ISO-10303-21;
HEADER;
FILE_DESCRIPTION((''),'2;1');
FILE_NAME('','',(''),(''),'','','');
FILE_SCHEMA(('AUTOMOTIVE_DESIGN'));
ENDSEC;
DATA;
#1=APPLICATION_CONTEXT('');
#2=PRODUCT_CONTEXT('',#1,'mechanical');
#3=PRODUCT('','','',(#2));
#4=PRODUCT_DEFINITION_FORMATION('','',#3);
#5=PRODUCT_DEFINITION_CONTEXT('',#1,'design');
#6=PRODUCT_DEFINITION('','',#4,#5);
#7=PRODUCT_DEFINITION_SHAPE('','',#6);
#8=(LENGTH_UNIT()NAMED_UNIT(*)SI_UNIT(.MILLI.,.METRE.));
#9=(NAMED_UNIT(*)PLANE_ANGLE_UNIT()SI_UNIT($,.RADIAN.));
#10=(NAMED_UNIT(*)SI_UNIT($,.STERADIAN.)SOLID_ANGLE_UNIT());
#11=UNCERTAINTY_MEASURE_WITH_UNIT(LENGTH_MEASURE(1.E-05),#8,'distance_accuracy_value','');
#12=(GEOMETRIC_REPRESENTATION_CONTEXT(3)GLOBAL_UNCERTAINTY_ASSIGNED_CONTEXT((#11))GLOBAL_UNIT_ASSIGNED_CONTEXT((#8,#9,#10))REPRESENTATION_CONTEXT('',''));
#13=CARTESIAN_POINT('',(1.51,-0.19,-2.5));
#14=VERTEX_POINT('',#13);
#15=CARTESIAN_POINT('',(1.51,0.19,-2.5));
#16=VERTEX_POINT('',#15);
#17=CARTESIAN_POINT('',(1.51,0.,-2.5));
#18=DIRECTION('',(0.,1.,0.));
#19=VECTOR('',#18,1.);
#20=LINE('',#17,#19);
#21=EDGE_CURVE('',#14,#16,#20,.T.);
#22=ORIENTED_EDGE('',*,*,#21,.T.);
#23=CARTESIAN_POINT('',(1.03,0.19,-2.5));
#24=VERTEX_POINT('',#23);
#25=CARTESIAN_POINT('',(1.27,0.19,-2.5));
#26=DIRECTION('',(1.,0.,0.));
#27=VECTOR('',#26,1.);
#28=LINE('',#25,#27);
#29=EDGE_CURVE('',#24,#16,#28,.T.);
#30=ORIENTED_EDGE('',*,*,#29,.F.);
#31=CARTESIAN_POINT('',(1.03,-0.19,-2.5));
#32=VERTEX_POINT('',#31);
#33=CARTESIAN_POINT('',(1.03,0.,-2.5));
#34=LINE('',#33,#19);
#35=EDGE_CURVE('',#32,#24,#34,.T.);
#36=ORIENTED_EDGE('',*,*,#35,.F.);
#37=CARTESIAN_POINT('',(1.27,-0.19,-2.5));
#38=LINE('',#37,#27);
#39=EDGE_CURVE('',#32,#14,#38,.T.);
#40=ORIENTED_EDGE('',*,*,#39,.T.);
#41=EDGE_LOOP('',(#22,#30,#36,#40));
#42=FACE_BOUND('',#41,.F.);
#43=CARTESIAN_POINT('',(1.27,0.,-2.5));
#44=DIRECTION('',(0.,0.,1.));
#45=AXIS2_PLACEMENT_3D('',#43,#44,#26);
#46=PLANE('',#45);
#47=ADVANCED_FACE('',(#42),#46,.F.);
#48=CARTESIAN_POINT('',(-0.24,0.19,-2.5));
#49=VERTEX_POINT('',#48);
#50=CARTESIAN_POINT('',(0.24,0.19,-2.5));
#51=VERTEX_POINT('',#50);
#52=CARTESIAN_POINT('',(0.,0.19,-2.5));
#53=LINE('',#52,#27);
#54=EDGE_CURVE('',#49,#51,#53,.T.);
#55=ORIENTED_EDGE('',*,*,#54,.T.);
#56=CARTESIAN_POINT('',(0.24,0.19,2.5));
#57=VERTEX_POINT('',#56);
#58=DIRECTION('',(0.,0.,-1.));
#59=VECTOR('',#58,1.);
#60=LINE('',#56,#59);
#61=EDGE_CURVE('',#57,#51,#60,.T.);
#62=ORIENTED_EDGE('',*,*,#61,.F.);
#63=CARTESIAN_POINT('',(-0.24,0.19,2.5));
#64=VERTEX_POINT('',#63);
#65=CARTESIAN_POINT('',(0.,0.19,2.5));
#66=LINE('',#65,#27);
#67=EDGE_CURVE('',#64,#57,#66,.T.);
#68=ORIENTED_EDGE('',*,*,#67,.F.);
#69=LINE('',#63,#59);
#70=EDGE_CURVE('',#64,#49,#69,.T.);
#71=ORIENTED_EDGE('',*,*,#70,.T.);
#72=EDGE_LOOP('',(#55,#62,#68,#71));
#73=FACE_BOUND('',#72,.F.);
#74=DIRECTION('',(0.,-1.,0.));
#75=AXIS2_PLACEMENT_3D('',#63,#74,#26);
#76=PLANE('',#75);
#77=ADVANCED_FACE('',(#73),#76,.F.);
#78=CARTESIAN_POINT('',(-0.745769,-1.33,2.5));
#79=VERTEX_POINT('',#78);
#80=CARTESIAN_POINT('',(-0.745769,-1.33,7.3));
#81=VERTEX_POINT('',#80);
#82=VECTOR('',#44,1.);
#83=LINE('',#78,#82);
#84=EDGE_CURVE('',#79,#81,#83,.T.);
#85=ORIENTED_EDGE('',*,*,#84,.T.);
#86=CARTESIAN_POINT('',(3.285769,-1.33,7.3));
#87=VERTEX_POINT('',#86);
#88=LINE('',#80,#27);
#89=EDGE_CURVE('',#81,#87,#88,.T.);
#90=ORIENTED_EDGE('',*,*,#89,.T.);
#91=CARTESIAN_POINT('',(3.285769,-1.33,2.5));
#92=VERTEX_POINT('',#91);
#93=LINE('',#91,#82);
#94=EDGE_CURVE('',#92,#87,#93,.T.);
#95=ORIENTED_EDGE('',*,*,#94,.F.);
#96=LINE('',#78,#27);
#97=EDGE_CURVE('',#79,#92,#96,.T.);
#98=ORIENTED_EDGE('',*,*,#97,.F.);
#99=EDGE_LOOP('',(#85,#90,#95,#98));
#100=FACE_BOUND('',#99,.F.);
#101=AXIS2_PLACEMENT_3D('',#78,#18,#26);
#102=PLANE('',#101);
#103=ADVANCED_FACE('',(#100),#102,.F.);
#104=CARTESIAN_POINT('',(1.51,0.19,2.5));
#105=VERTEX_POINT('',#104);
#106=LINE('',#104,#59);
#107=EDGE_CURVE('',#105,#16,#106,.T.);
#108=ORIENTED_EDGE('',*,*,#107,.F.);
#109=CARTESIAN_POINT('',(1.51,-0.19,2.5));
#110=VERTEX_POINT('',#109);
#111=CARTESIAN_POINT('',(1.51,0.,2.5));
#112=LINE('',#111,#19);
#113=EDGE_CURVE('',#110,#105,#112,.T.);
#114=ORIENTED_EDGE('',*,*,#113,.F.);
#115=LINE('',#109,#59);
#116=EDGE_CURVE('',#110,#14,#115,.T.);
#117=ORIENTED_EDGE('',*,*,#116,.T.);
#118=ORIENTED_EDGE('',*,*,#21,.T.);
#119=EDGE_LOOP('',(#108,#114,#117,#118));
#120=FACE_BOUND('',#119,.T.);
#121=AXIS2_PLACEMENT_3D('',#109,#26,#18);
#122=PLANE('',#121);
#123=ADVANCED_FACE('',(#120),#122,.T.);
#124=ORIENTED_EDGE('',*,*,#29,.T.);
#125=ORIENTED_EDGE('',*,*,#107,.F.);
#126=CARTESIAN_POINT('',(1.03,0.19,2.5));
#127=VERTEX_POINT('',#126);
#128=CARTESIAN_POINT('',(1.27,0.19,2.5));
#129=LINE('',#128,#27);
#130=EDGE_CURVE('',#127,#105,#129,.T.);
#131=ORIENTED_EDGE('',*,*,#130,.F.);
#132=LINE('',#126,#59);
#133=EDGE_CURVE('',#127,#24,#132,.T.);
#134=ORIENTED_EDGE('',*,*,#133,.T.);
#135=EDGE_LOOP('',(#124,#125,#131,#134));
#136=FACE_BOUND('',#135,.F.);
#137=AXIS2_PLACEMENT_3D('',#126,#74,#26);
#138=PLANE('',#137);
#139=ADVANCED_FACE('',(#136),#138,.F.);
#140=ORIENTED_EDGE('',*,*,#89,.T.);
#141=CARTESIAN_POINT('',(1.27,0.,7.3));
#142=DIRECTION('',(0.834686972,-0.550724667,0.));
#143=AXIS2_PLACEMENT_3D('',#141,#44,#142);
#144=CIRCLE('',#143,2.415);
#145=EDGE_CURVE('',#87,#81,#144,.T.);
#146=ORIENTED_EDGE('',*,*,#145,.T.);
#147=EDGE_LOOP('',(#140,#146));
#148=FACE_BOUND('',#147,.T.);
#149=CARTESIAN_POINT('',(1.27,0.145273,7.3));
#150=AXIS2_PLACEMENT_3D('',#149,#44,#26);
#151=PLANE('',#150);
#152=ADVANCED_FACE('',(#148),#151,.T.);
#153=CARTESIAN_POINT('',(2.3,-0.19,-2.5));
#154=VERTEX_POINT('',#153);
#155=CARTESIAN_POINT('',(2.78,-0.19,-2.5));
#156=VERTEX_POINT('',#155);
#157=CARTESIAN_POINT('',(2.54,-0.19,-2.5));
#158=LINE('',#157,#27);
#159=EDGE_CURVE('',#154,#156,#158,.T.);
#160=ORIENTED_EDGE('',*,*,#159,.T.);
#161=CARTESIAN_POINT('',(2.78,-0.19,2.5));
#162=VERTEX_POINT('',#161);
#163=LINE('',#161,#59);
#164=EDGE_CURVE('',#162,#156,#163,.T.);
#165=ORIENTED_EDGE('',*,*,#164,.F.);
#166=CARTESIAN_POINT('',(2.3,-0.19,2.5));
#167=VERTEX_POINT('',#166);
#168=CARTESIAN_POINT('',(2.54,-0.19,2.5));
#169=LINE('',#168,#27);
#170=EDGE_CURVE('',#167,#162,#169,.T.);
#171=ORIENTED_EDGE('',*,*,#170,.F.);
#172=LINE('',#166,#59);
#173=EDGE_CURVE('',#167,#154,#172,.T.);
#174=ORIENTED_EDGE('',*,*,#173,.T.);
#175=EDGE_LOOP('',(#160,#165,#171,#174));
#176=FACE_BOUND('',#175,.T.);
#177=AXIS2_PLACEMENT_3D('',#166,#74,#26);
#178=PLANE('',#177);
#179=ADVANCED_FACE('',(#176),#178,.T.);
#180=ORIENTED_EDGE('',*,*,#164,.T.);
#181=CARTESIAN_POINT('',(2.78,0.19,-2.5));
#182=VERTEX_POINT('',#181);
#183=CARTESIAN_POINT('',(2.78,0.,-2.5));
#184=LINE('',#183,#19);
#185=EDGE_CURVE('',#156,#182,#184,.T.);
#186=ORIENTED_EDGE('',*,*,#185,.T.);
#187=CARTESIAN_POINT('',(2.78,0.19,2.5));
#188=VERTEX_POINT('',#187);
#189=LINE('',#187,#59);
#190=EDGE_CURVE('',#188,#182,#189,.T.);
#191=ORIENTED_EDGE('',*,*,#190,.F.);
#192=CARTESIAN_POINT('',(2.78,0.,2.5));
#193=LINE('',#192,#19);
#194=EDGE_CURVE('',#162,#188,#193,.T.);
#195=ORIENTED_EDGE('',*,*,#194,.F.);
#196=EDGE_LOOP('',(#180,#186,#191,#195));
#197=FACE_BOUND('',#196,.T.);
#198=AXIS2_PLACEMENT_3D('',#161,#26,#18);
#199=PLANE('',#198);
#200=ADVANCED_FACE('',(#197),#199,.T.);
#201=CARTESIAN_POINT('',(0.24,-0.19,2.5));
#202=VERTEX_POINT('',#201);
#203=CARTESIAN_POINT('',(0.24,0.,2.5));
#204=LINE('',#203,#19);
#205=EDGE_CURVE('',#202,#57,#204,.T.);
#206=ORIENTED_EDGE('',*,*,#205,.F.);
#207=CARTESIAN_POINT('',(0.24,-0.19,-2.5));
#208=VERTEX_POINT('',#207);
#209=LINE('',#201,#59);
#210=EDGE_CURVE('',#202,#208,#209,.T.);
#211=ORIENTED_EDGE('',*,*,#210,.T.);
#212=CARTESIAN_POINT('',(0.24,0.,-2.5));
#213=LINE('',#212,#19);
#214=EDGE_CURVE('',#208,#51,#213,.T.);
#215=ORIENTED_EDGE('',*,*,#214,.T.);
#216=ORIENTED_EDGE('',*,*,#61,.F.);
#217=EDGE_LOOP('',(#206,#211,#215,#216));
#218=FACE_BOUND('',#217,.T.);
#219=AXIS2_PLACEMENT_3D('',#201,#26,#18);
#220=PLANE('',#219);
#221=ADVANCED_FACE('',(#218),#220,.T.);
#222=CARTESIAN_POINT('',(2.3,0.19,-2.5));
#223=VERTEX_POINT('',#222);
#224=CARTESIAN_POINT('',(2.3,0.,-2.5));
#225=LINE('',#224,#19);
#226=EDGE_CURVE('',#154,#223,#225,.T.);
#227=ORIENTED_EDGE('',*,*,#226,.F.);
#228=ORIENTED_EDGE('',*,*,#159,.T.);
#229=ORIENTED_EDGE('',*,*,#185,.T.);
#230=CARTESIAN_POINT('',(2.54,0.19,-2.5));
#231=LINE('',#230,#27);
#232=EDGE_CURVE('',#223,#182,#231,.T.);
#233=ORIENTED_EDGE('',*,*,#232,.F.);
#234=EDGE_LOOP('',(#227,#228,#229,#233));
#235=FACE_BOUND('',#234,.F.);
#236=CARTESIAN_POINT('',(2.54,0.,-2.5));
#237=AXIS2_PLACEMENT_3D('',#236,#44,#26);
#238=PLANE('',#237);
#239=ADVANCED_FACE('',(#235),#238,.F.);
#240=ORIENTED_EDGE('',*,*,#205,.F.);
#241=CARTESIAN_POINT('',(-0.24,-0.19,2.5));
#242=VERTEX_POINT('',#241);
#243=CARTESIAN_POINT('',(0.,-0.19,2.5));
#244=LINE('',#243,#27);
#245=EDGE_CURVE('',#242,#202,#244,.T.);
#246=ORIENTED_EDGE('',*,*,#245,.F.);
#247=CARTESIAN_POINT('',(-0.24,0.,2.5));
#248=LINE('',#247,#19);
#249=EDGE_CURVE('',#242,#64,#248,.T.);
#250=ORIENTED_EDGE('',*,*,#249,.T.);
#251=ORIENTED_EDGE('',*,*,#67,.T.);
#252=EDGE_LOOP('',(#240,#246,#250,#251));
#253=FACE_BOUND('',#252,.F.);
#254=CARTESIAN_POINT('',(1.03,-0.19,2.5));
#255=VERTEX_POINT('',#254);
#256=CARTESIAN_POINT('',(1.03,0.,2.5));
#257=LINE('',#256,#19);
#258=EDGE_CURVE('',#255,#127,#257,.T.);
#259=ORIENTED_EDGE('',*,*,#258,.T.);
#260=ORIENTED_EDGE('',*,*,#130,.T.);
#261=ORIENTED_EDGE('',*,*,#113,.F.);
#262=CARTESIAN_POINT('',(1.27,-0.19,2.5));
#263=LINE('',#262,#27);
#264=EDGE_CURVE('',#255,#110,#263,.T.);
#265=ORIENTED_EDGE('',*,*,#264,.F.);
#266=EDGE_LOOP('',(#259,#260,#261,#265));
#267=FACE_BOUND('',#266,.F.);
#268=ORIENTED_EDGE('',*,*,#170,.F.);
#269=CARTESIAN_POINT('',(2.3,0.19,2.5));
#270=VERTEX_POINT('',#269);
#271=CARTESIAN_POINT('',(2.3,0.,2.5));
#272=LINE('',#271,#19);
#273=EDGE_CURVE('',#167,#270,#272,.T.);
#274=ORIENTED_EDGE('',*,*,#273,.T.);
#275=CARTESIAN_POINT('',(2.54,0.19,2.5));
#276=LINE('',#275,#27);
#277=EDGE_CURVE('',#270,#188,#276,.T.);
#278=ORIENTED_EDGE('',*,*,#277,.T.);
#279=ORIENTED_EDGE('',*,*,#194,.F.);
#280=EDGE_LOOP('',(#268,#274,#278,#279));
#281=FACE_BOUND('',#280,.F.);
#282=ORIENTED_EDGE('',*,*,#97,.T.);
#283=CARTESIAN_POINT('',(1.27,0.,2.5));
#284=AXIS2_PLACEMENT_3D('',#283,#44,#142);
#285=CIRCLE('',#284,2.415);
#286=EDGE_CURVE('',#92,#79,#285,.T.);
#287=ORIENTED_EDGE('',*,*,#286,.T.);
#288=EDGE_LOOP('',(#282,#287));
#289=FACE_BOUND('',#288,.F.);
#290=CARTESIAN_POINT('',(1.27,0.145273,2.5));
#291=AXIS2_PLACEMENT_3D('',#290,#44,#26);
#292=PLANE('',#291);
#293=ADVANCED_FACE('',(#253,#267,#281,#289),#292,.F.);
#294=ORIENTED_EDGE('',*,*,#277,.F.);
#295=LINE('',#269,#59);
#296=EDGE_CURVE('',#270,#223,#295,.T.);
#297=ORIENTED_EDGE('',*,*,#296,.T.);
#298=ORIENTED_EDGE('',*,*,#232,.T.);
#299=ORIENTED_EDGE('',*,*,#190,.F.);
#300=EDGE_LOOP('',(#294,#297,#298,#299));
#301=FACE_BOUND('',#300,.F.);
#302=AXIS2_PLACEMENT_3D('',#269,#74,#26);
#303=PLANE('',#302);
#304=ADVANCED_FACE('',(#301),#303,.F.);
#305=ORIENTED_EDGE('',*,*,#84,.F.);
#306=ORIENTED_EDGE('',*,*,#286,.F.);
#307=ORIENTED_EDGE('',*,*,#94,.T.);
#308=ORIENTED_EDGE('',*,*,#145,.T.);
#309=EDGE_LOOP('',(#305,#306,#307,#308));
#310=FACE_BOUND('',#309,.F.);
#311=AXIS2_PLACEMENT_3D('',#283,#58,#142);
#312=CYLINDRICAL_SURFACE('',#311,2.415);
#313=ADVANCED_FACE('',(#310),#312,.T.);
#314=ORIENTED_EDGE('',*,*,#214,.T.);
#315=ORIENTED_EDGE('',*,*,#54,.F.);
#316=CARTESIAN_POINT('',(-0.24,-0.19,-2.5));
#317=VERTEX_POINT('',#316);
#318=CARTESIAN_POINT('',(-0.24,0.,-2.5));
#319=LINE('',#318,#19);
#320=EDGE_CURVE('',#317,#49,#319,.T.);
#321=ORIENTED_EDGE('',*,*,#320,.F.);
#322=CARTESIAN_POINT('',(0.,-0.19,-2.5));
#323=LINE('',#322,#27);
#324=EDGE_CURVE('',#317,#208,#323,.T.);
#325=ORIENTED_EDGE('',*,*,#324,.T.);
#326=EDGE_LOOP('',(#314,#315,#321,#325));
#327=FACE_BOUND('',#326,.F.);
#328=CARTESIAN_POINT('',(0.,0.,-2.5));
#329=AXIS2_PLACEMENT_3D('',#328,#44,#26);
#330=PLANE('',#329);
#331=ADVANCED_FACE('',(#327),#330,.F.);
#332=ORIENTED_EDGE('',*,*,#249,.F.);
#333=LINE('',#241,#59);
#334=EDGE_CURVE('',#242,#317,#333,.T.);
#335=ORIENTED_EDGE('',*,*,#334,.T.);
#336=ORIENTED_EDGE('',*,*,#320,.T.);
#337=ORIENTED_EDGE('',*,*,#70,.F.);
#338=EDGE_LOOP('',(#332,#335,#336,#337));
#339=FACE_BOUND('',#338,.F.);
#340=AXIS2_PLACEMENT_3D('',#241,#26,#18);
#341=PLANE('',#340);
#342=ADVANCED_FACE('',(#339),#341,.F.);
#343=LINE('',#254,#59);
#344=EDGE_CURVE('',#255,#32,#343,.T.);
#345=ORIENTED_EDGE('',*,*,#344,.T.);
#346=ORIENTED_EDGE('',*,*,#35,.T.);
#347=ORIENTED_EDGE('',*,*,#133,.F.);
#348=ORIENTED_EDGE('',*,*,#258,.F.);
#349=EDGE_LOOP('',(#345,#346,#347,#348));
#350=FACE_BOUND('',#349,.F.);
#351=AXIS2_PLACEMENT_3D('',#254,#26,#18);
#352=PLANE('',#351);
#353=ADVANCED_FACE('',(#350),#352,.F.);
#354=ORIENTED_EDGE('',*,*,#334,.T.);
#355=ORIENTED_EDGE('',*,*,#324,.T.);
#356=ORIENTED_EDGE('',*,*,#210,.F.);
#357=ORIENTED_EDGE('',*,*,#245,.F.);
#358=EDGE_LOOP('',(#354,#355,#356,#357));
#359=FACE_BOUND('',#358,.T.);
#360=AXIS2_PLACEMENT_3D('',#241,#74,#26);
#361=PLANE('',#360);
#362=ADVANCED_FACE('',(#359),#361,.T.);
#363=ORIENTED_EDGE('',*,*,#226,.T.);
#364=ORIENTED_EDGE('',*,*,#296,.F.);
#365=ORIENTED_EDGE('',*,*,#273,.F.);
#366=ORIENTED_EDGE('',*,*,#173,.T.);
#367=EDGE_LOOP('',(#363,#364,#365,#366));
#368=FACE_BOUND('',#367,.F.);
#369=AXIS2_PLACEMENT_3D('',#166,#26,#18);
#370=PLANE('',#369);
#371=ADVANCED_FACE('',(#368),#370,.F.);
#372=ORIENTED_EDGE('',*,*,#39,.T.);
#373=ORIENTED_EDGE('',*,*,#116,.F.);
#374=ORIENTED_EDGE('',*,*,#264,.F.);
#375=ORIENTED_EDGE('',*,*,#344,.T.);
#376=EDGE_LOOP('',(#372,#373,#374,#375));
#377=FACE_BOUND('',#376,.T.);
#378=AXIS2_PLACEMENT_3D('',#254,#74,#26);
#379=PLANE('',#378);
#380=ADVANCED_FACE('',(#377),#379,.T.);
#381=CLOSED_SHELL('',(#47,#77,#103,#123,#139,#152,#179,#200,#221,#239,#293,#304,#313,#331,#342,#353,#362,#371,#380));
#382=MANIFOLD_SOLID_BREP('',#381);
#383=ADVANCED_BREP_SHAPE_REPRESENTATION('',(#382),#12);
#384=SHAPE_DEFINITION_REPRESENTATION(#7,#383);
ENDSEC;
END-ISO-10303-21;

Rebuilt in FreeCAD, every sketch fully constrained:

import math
import FreeCAD as App
import Part
import Sketcher
from FreeCAD import Vector


def add_polygon(sketch, points):
    """Adds a closed chain of lines whose ends are joined by coincident constraints."""
    first, n = sketch.GeometryCount, len(points)
    for a, b in zip(points, points[1:] + points[:1]):
        sketch.addGeometry(Part.LineSegment(App.Vector(*a, 0), App.Vector(*b, 0)), False)
    for i in range(n):
        sketch.addConstraint(Sketcher.Constraint("Coincident", first + i, 2, first + (i + 1) % n, 1))

doc = App.newDocument("Part")
params = doc.addObject("Spreadsheet::Sheet", "Params")
for row, (alias, value) in enumerate([
    ("sketch1_width", "0.48 mm"),
    ("sketch1_height", "0.38 mm"),
    ("pad1_length", "5 mm"),
    ("pad2_length", "4.8 mm"),
], start=1):
    params.set(f"A{row}", alias)
    params.set(f"B{row}", "=" + value)
    params.setAlias(f"B{row}", alias)

body = doc.addObject("PartDesign::Body", "Body")
body.AllowCompound = True

sketch1 = body.newObject("Sketcher::SketchObject", "Sketch")
sketch1.AttachmentSupport = (doc.getObject("XY_Plane"), [""])
sketch1.MapMode = "FlatFace"
sketch1.AttachmentOffset = App.Placement(Vector(0, 0, 2.5), App.Rotation())
add_polygon(sketch1, [(-0.24, 0.19), (-0.24, -0.19), (0.24, -0.19), (0.24, 0.19)])
add_polygon(sketch1, [(1.03, 0.19), (1.03, -0.19), (1.51, -0.19), (1.51, 0.19)])
add_polygon(sketch1, [(2.3, 0.19), (2.3, -0.19), (2.78, -0.19), (2.78, 0.19)])
sketch1.addConstraint(Sketcher.Constraint("Vertical", 0))
sketch1.addConstraint(Sketcher.Constraint("Horizontal", 1))
sketch1.addConstraint(Sketcher.Constraint("Vertical", 2))
sketch1.addConstraint(Sketcher.Constraint("Horizontal", 3))
sketch1.addConstraint(Sketcher.Constraint("Vertical", 4))
sketch1.addConstraint(Sketcher.Constraint("Horizontal", 5))
sketch1.addConstraint(Sketcher.Constraint("Vertical", 6))
sketch1.addConstraint(Sketcher.Constraint("Horizontal", 7))
sketch1.addConstraint(Sketcher.Constraint("Vertical", 8))
sketch1.addConstraint(Sketcher.Constraint("Horizontal", 9))
sketch1.addConstraint(Sketcher.Constraint("Vertical", 10))
sketch1.addConstraint(Sketcher.Constraint("Horizontal", 11))
sketch1.addConstraint(Sketcher.Constraint("Symmetric", 0, 2, 2, 2, -1, 1))
sketch1.addConstraint(Sketcher.Constraint("Horizontal", 1, 2, 4, 2))
sketch1.addConstraint(Sketcher.Constraint("Horizontal", 3, 2, 6, 2))
sketch1.addConstraint(Sketcher.Constraint("Horizontal", 5, 2, 8, 2))
sketch1.addConstraint(Sketcher.Constraint("Horizontal", 7, 2, 10, 2))
sketch1.addConstraint(Sketcher.Constraint("Equal", 3, 5))
sketch1.addConstraint(Sketcher.Constraint("Equal", 7, 9))
sketch1.addConstraint(Sketcher.Constraint("DistanceX", 1, 1, 1, 2, 0.48))
sketch1.addConstraint(Sketcher.Constraint("DistanceY", 0, 2, 0, 1, 0.38))
sketch1.addConstraint(Sketcher.Constraint("DistanceX", -1, 1, 8, 2, 2.3))
sketch1.addConstraint(Sketcher.Constraint("DistanceX", -1, 1, 4, 2, 1.03))
sketch1.setExpression("Constraints[31]", "Params.sketch1_width")
sketch1.setExpression("Constraints[32]", "Params.sketch1_height")
pad1 = body.newObject("PartDesign::Pad", "Pad")
pad1.Profile = sketch1
pad1.setExpression("Length", "Params.pad1_length")
pad1.Reversed = True
body2 = doc.addObject("PartDesign::Body", "Body001")

sketch2 = body2.newObject("Sketcher::SketchObject", "Sketch001")
sketch2.AttachmentSupport = (doc.getObject("XY_Plane001"), [""])
sketch2.MapMode = "FlatFace"
sketch2.AttachmentOffset = App.Placement(Vector(0, 0, 2.5), App.Rotation())
sketch2.addGeometry(Part.LineSegment(Vector(-0.7, -1.3, 0), Vector(3.3, -1.3, 0)), False)
sketch2.addGeometry(Part.ArcOfCircle(Part.Circle(Vector(1.3, 0, 0), Vector(0, 0, 1), 2.4), math.radians(-33), math.radians(213)), False)
sketch2.addConstraint(Sketcher.Constraint("Coincident", 0, 1, 1, 2))
sketch2.addConstraint(Sketcher.Constraint("Coincident", 1, 1, 0, 2))
sketch2.addConstraint(Sketcher.Constraint("Horizontal", 0))
sketch2.addConstraint(Sketcher.Constraint("PointOnObject", 1, 3, -1))
sketch2.addConstraint(Sketcher.Constraint("Radius", 1, 2.415))
sketch2.addConstraint(Sketcher.Constraint("DistanceX", -1, 1, 1, 3, 1.27))
sketch2.addConstraint(Sketcher.Constraint("DistanceY", 0, 1, -1, 1, 1.33))
pad2 = body2.newObject("PartDesign::Pad", "Pad001")
pad2.Profile = sketch2
pad2.setExpression("Length", "Params.pad2_length")
doc.recompute()

boolean = body2.newObject("PartDesign::Boolean", "Boolean")
boolean.Type = "Fuse"
boolean.addObjects([body])

doc.recompute()
